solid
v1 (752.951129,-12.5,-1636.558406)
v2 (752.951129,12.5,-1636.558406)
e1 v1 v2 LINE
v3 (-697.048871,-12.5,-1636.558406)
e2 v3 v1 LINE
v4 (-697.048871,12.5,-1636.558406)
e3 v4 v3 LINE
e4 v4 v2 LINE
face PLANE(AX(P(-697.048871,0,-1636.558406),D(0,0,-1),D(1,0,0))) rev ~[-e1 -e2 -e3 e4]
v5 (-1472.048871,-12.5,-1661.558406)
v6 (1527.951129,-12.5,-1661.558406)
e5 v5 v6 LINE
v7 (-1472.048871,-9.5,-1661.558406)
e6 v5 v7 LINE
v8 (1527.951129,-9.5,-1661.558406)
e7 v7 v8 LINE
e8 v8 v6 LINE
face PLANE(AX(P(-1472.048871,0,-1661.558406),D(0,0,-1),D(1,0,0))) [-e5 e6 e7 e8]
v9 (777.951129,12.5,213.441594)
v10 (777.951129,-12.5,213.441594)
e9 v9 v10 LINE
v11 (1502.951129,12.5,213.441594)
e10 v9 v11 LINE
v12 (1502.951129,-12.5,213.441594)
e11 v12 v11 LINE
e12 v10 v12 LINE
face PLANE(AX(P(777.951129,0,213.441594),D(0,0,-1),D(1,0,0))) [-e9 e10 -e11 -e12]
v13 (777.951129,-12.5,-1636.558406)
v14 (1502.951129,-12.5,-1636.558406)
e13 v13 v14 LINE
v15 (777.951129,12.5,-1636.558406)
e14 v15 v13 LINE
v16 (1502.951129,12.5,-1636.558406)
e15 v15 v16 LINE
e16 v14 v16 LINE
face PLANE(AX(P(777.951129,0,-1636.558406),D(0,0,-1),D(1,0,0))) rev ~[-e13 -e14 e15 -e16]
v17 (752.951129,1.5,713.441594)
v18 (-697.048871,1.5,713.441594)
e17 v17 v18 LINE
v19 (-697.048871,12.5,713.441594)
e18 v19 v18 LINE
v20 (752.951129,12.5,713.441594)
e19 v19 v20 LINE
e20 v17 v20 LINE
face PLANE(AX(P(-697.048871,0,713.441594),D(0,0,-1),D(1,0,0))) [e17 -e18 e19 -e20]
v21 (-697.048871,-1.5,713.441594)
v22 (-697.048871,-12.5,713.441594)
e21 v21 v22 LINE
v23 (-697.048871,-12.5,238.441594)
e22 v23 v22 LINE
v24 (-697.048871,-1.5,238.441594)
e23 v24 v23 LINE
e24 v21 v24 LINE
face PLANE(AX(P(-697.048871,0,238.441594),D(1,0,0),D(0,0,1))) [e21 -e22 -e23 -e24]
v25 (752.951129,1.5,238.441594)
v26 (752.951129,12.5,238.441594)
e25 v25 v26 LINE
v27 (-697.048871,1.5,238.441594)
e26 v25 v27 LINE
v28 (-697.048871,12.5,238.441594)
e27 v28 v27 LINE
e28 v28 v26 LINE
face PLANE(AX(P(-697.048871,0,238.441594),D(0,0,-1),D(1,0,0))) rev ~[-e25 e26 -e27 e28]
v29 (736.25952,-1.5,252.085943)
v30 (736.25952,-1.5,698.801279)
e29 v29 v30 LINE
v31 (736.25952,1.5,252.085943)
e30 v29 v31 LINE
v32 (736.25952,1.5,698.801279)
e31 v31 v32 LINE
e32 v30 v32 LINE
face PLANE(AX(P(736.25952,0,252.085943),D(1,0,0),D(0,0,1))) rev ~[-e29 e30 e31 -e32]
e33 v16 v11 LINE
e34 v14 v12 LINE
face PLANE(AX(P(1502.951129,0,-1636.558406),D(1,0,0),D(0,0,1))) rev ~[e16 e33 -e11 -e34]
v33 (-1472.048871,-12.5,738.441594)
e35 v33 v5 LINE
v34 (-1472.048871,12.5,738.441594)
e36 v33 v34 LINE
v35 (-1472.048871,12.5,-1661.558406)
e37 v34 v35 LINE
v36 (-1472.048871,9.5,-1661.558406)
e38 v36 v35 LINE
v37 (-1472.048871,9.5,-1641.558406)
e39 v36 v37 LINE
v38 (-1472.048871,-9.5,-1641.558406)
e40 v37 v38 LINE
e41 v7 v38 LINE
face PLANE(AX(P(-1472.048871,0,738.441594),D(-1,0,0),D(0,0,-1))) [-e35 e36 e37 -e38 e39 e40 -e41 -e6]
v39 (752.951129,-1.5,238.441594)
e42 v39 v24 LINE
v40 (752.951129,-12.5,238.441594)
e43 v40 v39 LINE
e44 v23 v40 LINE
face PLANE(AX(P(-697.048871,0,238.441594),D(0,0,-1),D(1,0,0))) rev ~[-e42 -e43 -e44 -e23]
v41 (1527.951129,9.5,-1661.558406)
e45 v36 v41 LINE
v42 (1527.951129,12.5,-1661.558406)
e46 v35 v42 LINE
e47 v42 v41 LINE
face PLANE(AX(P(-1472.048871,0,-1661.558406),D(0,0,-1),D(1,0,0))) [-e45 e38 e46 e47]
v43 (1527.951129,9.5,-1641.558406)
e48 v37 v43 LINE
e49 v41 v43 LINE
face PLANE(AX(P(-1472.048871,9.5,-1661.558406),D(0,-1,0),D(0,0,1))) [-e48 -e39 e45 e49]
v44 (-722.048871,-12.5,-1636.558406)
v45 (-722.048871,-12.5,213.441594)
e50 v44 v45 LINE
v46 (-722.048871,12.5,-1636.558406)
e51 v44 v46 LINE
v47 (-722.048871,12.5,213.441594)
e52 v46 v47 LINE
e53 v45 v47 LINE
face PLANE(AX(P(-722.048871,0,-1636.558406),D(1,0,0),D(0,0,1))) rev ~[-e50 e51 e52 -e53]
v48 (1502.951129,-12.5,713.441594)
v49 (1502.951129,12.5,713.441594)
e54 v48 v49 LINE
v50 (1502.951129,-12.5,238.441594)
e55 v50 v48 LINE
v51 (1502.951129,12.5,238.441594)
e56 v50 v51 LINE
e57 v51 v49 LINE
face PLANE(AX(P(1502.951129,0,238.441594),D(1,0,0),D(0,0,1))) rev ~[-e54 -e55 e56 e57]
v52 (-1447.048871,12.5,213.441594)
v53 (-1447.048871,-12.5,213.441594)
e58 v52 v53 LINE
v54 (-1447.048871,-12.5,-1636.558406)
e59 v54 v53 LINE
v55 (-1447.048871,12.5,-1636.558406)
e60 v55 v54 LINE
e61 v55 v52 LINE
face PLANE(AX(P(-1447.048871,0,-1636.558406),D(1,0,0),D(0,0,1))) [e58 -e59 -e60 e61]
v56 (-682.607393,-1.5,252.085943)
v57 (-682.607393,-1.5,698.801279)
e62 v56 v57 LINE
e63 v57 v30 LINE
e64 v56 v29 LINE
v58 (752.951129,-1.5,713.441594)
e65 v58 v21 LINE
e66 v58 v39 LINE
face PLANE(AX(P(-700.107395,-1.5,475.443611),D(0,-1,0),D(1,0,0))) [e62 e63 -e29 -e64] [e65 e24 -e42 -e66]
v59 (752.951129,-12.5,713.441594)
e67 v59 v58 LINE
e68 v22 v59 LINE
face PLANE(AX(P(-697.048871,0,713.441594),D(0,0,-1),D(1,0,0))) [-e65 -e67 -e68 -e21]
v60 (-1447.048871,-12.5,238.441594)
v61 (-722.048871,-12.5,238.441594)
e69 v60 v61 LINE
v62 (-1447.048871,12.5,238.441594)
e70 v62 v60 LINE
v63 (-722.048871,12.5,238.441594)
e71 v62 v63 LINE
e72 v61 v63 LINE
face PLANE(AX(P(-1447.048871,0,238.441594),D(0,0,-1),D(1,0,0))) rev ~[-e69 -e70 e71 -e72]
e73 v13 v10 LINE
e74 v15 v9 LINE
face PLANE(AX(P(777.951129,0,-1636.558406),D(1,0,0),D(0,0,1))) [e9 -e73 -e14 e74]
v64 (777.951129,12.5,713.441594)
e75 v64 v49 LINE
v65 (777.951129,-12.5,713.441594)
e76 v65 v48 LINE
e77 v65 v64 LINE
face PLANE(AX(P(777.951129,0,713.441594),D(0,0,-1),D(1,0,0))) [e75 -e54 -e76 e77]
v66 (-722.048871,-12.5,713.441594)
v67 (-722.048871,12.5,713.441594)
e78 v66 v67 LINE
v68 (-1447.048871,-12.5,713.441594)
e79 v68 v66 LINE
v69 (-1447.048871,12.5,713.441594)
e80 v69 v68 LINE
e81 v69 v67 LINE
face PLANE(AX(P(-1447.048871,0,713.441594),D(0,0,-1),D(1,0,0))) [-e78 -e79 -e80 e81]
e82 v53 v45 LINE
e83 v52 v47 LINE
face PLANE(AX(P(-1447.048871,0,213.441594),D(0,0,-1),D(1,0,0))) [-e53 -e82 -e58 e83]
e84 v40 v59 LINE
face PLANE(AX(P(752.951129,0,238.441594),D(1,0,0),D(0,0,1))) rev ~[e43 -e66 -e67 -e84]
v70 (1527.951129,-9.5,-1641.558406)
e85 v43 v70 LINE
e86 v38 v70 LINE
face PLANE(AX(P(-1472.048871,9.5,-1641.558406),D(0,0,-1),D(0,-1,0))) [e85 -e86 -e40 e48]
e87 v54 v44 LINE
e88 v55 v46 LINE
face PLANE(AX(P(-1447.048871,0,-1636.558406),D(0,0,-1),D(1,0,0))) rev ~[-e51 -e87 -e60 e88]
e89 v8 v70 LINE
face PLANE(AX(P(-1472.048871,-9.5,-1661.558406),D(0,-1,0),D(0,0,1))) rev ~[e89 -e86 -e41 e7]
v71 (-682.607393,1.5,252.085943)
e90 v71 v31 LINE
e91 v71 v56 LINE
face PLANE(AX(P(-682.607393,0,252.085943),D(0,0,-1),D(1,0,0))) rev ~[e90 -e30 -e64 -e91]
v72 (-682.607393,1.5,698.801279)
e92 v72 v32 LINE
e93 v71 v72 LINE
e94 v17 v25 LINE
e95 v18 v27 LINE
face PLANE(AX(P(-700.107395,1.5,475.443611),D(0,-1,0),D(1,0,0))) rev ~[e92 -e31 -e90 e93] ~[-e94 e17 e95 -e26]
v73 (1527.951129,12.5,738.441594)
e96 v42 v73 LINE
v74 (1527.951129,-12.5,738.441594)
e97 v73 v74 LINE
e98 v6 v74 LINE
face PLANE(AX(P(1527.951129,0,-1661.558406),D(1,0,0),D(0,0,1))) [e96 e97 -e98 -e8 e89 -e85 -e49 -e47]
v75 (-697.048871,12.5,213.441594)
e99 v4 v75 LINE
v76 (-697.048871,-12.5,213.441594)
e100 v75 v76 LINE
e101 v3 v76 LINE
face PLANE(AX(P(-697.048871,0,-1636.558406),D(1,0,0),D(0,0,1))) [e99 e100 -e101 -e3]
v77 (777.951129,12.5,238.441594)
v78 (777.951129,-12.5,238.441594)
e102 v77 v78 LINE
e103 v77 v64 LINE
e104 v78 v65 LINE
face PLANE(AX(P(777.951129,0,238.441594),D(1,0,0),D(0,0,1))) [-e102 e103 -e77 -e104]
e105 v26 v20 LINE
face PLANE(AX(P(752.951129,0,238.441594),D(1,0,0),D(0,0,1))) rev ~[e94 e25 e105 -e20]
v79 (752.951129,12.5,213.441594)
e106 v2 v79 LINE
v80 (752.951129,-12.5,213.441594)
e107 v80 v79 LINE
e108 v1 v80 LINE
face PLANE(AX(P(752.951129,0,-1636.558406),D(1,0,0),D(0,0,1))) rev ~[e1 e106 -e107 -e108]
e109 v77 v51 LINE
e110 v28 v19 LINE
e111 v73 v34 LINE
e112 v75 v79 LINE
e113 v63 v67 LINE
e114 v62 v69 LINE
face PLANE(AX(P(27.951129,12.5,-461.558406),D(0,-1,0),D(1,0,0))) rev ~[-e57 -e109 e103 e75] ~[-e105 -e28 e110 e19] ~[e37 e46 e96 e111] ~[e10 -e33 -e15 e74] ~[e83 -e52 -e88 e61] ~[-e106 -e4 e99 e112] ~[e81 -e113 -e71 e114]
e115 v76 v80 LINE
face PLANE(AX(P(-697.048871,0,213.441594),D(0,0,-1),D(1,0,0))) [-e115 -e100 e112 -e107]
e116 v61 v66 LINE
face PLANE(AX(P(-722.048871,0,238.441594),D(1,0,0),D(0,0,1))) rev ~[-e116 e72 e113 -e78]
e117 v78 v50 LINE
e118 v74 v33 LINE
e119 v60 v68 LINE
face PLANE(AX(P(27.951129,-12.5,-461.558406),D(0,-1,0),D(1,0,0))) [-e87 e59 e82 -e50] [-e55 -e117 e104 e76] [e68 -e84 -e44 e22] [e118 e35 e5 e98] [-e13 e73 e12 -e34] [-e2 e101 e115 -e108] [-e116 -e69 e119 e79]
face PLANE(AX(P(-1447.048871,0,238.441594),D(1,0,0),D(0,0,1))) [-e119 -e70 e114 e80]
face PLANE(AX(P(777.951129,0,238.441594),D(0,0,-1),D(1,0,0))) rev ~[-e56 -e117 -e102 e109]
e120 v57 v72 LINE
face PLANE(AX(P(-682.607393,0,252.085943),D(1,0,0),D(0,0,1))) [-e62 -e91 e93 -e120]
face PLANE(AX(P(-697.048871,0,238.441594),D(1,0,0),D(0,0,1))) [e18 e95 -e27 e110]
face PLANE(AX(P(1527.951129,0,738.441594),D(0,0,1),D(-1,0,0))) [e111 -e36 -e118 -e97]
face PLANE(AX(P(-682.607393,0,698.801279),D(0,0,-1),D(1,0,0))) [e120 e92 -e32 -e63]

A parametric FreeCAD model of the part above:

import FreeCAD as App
import Part
import Sketcher


def add_polygon(sketch, points):
    """Adds a closed chain of lines whose ends are joined by coincident constraints."""
    first, n = sketch.GeometryCount, len(points)
    for a, b in zip(points, points[1:] + points[:1]):
        sketch.addGeometry(Part.LineSegment(App.Vector(*a, 0), App.Vector(*b, 0)), False)
    for i in range(n):
        sketch.addConstraint(Sketcher.Constraint("Coincident", first + i, 2, first + (i + 1) % n, 1))

doc = App.newDocument("Part")
body = doc.addObject("PartDesign::Body", "Body")

# Sketch on XZ plane
sketch1 = doc.addObject("Sketcher::SketchObject", "Sketch")
body.addObject(sketch1)
sketch1.AttachmentSupport = (doc.XZ_Plane, [""])
sketch1.MapMode = "FlatFace"
add_polygon(sketch1, [(-1472, -1662), (1528, -1662), (1528, 738), (-1472, 738)])  # lines 0-3
add_polygon(sketch1, [(-722, -1637), (-1447, -1637), (-1447, 213), (-722, 213)])  # lines 4-7
add_polygon(sketch1, [(753, -1637), (-697, -1637), (-697, 213), (753, 213)])  # lines 8-11
add_polygon(sketch1, [(1503, -1637), (778, -1637), (778, 213), (1503, 213)])  # lines 12-15
add_polygon(sketch1, [(-722, 238), (-1447, 238), (-1447, 713), (-722, 713)])  # lines 16-19
add_polygon(sketch1, [(753, 238), (-697, 238), (-697, 713), (753, 713)])  # lines 20-23
add_polygon(sketch1, [(1503, 238), (778, 238), (778, 713), (1503, 713)])  # lines 24-27
sketch1.addConstraint(Sketcher.Constraint("Horizontal", 0))
sketch1.addConstraint(Sketcher.Constraint("Vertical", 1))
sketch1.addConstraint(Sketcher.Constraint("Horizontal", 2))
sketch1.addConstraint(Sketcher.Constraint("Vertical", 3))
sketch1.addConstraint(Sketcher.Constraint("Horizontal", 4))
sketch1.addConstraint(Sketcher.Constraint("Vertical", 5))
sketch1.addConstraint(Sketcher.Constraint("Horizontal", 6))
sketch1.addConstraint(Sketcher.Constraint("Vertical", 7))
sketch1.addConstraint(Sketcher.Constraint("Horizontal", 8))
sketch1.addConstraint(Sketcher.Constraint("Vertical", 9))
sketch1.addConstraint(Sketcher.Constraint("Horizontal", 10))
sketch1.addConstraint(Sketcher.Constraint("Vertical", 11))
sketch1.addConstraint(Sketcher.Constraint("Horizontal", 12))
sketch1.addConstraint(Sketcher.Constraint("Vertical", 13))
sketch1.addConstraint(Sketcher.Constraint("Horizontal", 14))
sketch1.addConstraint(Sketcher.Constraint("Vertical", 15))
sketch1.addConstraint(Sketcher.Constraint("Horizontal", 16))
sketch1.addConstraint(Sketcher.Constraint("Vertical", 17))
sketch1.addConstraint(Sketcher.Constraint("Horizontal", 18))
sketch1.addConstraint(Sketcher.Constraint("Vertical", 19))
sketch1.addConstraint(Sketcher.Constraint("Horizontal", 20))
sketch1.addConstraint(Sketcher.Constraint("Vertical", 21))
sketch1.addConstraint(Sketcher.Constraint("Horizontal", 22))
sketch1.addConstraint(Sketcher.Constraint("Vertical", 23))
sketch1.addConstraint(Sketcher.Constraint("Horizontal", 24))
sketch1.addConstraint(Sketcher.Constraint("Vertical", 25))
sketch1.addConstraint(Sketcher.Constraint("Horizontal", 26))
sketch1.addConstraint(Sketcher.Constraint("Vertical", 27))
sketch1.addConstraint(Sketcher.Constraint("Horizontal", 7, 2, 8, 2))
sketch1.addConstraint(Sketcher.Constraint("Horizontal", 6, 2, 9, 2))
sketch1.addConstraint(Sketcher.Constraint("Horizontal", 11, 2, 12, 2))
sketch1.addConstraint(Sketcher.Constraint("Horizontal", 10, 2, 13, 2))
sketch1.addConstraint(Sketcher.Constraint("Horizontal", 19, 2, 20, 2))
sketch1.addConstraint(Sketcher.Constraint("Horizontal", 18, 2, 21, 2))
sketch1.addConstraint(Sketcher.Constraint("Horizontal", 23, 2, 24, 2))
sketch1.addConstraint(Sketcher.Constraint("Horizontal", 22, 2, 25, 2))
sketch1.addConstraint(Sketcher.Constraint("Vertical", 5, 2, 16, 2))
sketch1.addConstraint(Sketcher.Constraint("Vertical", 7, 2, 18, 2))
sketch1.addConstraint(Sketcher.Constraint("Vertical", 9, 2, 20, 2))
sketch1.addConstraint(Sketcher.Constraint("Vertical", 11, 2, 22, 2))
sketch1.addConstraint(Sketcher.Constraint("Vertical", 13, 2, 24, 2))
sketch1.addConstraint(Sketcher.Constraint("Vertical", 15, 2, 26, 2))
sketch1.addConstraint(Sketcher.Constraint("Equal", 6, 12))
sketch1.addConstraint(Sketcher.Constraint("DistanceX", 0, 1, 0, 2, 3000.0))
sketch1.addConstraint(Sketcher.Constraint("DistanceX", 4, 2, 4, 1, 725.0))
sketch1.addConstraint(Sketcher.Constraint("DistanceX", 8, 2, 8, 1, 1450.0))
sketch1.addConstraint(Sketcher.Constraint("DistanceY", 1, 1, 1, 2, 2400.0))
sketch1.addConstraint(Sketcher.Constraint("DistanceY", 5, 1, 5, 2, 1850.0))
sketch1.addConstraint(Sketcher.Constraint("DistanceY", 17, 1, 17, 2, 475.0))
sketch1.addConstraint(Sketcher.Constraint("DistanceX", 3, 2, 4, 2, 25.0))
sketch1.addConstraint(Sketcher.Constraint("DistanceY", 3, 2, 4, 2, 25.0))
sketch1.addConstraint(Sketcher.Constraint("DistanceX", 7, 2, 8, 2, 25.0))
sketch1.addConstraint(Sketcher.Constraint("DistanceX", 11, 2, 12, 2, 25.0))
sketch1.addConstraint(Sketcher.Constraint("DistanceY", 5, 2, 16, 2, 25.0))
sketch1.addConstraint(Sketcher.Constraint("DistanceX", -1, 1, 0, 2, 1527.951129))
sketch1.addConstraint(Sketcher.Constraint("DistanceY", 0, 2, -1, 1, 1661.558406))
pad1 = doc.addObject("PartDesign::Pad", "Pad")
body.addObject(pad1)
pad1.Profile = sketch1
pad1.Length = 25
pad1.Midplane = True

# Sketch on XZ plane
sketch2 = doc.addObject("Sketcher::SketchObject", "Sketch001")
body.addObject(sketch2)
sketch2.AttachmentSupport = (doc.XZ_Plane, [""])
sketch2.MapMode = "FlatFace"
add_polygon(sketch2, [(-1472, -1662), (1528, -1662), (1528, 738), (-1472, 738)])  # lines 0-3
add_polygon(sketch2, [(-722, -1637), (-1447, -1637), (-1447, 213), (-722, 213)])  # lines 4-7
add_polygon(sketch2, [(753, -1637), (-697, -1637), (-697, 213), (753, 213)])  # lines 8-11
add_polygon(sketch2, [(1503, -1637), (778, -1637), (778, 213), (1503, 213)])  # lines 12-15
add_polygon(sketch2, [(-722, 238), (-1447, 238), (-1447, 713), (-722, 713)])  # lines 16-19
add_polygon(sketch2, [(753, 238), (-697, 238), (-697, 713), (753, 713)])  # lines 20-23
add_polygon(sketch2, [(1503, 238), (778, 238), (778, 713), (1503, 713)])  # lines 24-27
sketch2.addConstraint(Sketcher.Constraint("Horizontal", 0))
sketch2.addConstraint(Sketcher.Constraint("Vertical", 1))
sketch2.addConstraint(Sketcher.Constraint("Horizontal", 2))
sketch2.addConstraint(Sketcher.Constraint("Vertical", 3))
sketch2.addConstraint(Sketcher.Constraint("Horizontal", 4))
sketch2.addConstraint(Sketcher.Constraint("Vertical", 5))
sketch2.addConstraint(Sketcher.Constraint("Horizontal", 6))
sketch2.addConstraint(Sketcher.Constraint("Vertical", 7))
sketch2.addConstraint(Sketcher.Constraint("Horizontal", 8))
sketch2.addConstraint(Sketcher.Constraint("Vertical", 9))
sketch2.addConstraint(Sketcher.Constraint("Horizontal", 10))
sketch2.addConstraint(Sketcher.Constraint("Vertical", 11))
sketch2.addConstraint(Sketcher.Constraint("Horizontal", 12))
sketch2.addConstraint(Sketcher.Constraint("Vertical", 13))
sketch2.addConstraint(Sketcher.Constraint("Horizontal", 14))
sketch2.addConstraint(Sketcher.Constraint("Vertical", 15))
sketch2.addConstraint(Sketcher.Constraint("Horizontal", 16))
sketch2.addConstraint(Sketcher.Constraint("Vertical", 17))
sketch2.addConstraint(Sketcher.Constraint("Horizontal", 18))
sketch2.addConstraint(Sketcher.Constraint("Vertical", 19))
sketch2.addConstraint(Sketcher.Constraint("Horizontal", 20))
sketch2.addConstraint(Sketcher.Constraint("Vertical", 21))
sketch2.addConstraint(Sketcher.Constraint("Horizontal", 22))
sketch2.addConstraint(Sketcher.Constraint("Vertical", 23))
sketch2.addConstraint(Sketcher.Constraint("Horizontal", 24))
sketch2.addConstraint(Sketcher.Constraint("Vertical", 25))
sketch2.addConstraint(Sketcher.Constraint("Horizontal", 26))
sketch2.addConstraint(Sketcher.Constraint("Vertical", 27))
sketch2.addConstraint(Sketcher.Constraint("Horizontal", 7, 2, 8, 2))
sketch2.addConstraint(Sketcher.Constraint("Horizontal", 6, 2, 9, 2))
sketch2.addConstraint(Sketcher.Constraint("Horizontal", 11, 2, 12, 2))
sketch2.addConstraint(Sketcher.Constraint("Horizontal", 10, 2, 13, 2))
sketch2.addConstraint(Sketcher.Constraint("Horizontal", 19, 2, 20, 2))
sketch2.addConstraint(Sketcher.Constraint("Horizontal", 18, 2, 21, 2))
sketch2.addConstraint(Sketcher.Constraint("Horizontal", 23, 2, 24, 2))
sketch2.addConstraint(Sketcher.Constraint("Horizontal", 22, 2, 25, 2))
sketch2.addConstraint(Sketcher.Constraint("Vertical", 5, 2, 16, 2))
sketch2.addConstraint(Sketcher.Constraint("Vertical", 7, 2, 18, 2))
sketch2.addConstraint(Sketcher.Constraint("Vertical", 9, 2, 20, 2))
sketch2.addConstraint(Sketcher.Constraint("Vertical", 11, 2, 22, 2))
sketch2.addConstraint(Sketcher.Constraint("Vertical", 13, 2, 24, 2))
sketch2.addConstraint(Sketcher.Constraint("Vertical", 15, 2, 26, 2))
sketch2.addConstraint(Sketcher.Constraint("Equal", 6, 12))
sketch2.addConstraint(Sketcher.Constraint("DistanceX", 0, 1, 0, 2, 3000.0))
sketch2.addConstraint(Sketcher.Constraint("DistanceX", 4, 2, 4, 1, 725.0))
sketch2.addConstraint(Sketcher.Constraint("DistanceX", 8, 2, 8, 1, 1450.0))
sketch2.addConstraint(Sketcher.Constraint("DistanceY", 1, 1, 1, 2, 2400.0))
sketch2.addConstraint(Sketcher.Constraint("DistanceY", 5, 1, 5, 2, 1850.0))
sketch2.addConstraint(Sketcher.Constraint("DistanceY", 17, 1, 17, 2, 475.0))
sketch2.addConstraint(Sketcher.Constraint("DistanceX", 3, 2, 4, 2, 25.0))
sketch2.addConstraint(Sketcher.Constraint("DistanceY", 3, 2, 4, 2, 25.0))
sketch2.addConstraint(Sketcher.Constraint("DistanceX", 7, 2, 8, 2, 25.0))
sketch2.addConstraint(Sketcher.Constraint("DistanceX", 11, 2, 12, 2, 25.0))
sketch2.addConstraint(Sketcher.Constraint("DistanceY", 5, 2, 16, 2, 25.0))
sketch2.addConstraint(Sketcher.Constraint("DistanceX", -1, 1, 0, 2, 1527.951129))
sketch2.addConstraint(Sketcher.Constraint("DistanceY", 0, 2, -1, 1, 1661.558406))
pad2 = doc.addObject("PartDesign::Pad", "Pad001")
body.addObject(pad2)
pad2.Profile = sketch2
pad2.Length = 25
pad2.Midplane = True

# Sketch on YZ plane
sketch3 = doc.addObject("Sketcher::SketchObject", "Sketch002")
body.addObject(sketch3)
sketch3.AttachmentSupport = (doc.YZ_Plane, [""])
sketch3.MapMode = "FlatFace"
sketch3.AttachmentOffset = App.Placement(App.Vector(0, 0, -1472.048871), App.Rotation())
add_polygon(sketch3, [(10, -1642), (10, -1662), (-10, -1662), (-10, -1642)])  # lines 0-3
sketch3.addConstraint(Sketcher.Constraint("Vertical", 0))
sketch3.addConstraint(Sketcher.Constraint("Horizontal", 1))
sketch3.addConstraint(Sketcher.Constraint("Vertical", 2))
sketch3.addConstraint(Sketcher.Constraint("Horizontal", 3))
sketch3.addConstraint(Sketcher.Constraint("DistanceX", 1, 2, 1, 1, 19.0))
sketch3.addConstraint(Sketcher.Constraint("DistanceY", 0, 2, 0, 1, 20.0))
sketch3.addConstraint(Sketcher.Constraint("DistanceX", -1, 1, 0, 2, 9.5))
sketch3.addConstraint(Sketcher.Constraint("DistanceY", 0, 2, -1, 1, 1661.558406))
pocket1 = doc.addObject("PartDesign::Pocket", "Pocket")
body.addObject(pocket1)
pocket1.Profile = sketch3
pocket1.Type = "ThroughAll"
pocket1.Reversed = True

# Sketch on XZ plane
sketch4 = doc.addObject("Sketcher::SketchObject", "Sketch003")
body.addObject(sketch4)
sketch4.AttachmentSupport = (doc.XZ_Plane, [""])
sketch4.MapMode = "FlatFace"
add_polygon(sketch4, [(-703, 719), (-703, 232), (756, 232), (756, 719)])  # lines 0-3
add_polygon(sketch4, [(736, 252), (-683, 252), (-683, 699), (736, 699)])  # lines 4-7
sketch4.addConstraint(Sketcher.Constraint("Vertical", 0))
sketch4.addConstraint(Sketcher.Constraint("Horizontal", 1))
sketch4.addConstraint(Sketcher.Constraint("Vertical", 2))
sketch4.addConstraint(Sketcher.Constraint("Horizontal", 3))
sketch4.addConstraint(Sketcher.Constraint("Horizontal", 4))
sketch4.addConstraint(Sketcher.Constraint("Vertical", 5))
sketch4.addConstraint(Sketcher.Constraint("Horizontal", 6))
sketch4.addConstraint(Sketcher.Constraint("Vertical", 7))
sketch4.addConstraint(Sketcher.Constraint("DistanceX", 0, 2, 4, 2, 19.999999))
sketch4.addConstraint(Sketcher.Constraint("DistanceY", 0, 2, 4, 2, 20.0))
sketch4.addConstraint(Sketcher.Constraint("DistanceY", 5, 2, 3, 2, 20.0))
sketch4.addConstraint(Sketcher.Constraint("DistanceX", 6, 2, 2, 2, 20.0))
sketch4.addConstraint(Sketcher.Constraint("DistanceX", 1, 1, 1, 2, 1458.866912))
sketch4.addConstraint(Sketcher.Constraint("DistanceY", 0, 2, 0, 1, 486.715336))
sketch4.addConstraint(Sketcher.Constraint("DistanceX", -1, 1, 1, 2, 756.25952))
sketch4.addConstraint(Sketcher.Constraint("DistanceY", -1, 1, 2, 2, 718.801279))
pad3 = doc.addObject("PartDesign::Pad", "Pad002")
body.addObject(pad3)
pad3.Profile = sketch4
pad3.Length = 3
pad3.Midplane = True

doc.recompute()
